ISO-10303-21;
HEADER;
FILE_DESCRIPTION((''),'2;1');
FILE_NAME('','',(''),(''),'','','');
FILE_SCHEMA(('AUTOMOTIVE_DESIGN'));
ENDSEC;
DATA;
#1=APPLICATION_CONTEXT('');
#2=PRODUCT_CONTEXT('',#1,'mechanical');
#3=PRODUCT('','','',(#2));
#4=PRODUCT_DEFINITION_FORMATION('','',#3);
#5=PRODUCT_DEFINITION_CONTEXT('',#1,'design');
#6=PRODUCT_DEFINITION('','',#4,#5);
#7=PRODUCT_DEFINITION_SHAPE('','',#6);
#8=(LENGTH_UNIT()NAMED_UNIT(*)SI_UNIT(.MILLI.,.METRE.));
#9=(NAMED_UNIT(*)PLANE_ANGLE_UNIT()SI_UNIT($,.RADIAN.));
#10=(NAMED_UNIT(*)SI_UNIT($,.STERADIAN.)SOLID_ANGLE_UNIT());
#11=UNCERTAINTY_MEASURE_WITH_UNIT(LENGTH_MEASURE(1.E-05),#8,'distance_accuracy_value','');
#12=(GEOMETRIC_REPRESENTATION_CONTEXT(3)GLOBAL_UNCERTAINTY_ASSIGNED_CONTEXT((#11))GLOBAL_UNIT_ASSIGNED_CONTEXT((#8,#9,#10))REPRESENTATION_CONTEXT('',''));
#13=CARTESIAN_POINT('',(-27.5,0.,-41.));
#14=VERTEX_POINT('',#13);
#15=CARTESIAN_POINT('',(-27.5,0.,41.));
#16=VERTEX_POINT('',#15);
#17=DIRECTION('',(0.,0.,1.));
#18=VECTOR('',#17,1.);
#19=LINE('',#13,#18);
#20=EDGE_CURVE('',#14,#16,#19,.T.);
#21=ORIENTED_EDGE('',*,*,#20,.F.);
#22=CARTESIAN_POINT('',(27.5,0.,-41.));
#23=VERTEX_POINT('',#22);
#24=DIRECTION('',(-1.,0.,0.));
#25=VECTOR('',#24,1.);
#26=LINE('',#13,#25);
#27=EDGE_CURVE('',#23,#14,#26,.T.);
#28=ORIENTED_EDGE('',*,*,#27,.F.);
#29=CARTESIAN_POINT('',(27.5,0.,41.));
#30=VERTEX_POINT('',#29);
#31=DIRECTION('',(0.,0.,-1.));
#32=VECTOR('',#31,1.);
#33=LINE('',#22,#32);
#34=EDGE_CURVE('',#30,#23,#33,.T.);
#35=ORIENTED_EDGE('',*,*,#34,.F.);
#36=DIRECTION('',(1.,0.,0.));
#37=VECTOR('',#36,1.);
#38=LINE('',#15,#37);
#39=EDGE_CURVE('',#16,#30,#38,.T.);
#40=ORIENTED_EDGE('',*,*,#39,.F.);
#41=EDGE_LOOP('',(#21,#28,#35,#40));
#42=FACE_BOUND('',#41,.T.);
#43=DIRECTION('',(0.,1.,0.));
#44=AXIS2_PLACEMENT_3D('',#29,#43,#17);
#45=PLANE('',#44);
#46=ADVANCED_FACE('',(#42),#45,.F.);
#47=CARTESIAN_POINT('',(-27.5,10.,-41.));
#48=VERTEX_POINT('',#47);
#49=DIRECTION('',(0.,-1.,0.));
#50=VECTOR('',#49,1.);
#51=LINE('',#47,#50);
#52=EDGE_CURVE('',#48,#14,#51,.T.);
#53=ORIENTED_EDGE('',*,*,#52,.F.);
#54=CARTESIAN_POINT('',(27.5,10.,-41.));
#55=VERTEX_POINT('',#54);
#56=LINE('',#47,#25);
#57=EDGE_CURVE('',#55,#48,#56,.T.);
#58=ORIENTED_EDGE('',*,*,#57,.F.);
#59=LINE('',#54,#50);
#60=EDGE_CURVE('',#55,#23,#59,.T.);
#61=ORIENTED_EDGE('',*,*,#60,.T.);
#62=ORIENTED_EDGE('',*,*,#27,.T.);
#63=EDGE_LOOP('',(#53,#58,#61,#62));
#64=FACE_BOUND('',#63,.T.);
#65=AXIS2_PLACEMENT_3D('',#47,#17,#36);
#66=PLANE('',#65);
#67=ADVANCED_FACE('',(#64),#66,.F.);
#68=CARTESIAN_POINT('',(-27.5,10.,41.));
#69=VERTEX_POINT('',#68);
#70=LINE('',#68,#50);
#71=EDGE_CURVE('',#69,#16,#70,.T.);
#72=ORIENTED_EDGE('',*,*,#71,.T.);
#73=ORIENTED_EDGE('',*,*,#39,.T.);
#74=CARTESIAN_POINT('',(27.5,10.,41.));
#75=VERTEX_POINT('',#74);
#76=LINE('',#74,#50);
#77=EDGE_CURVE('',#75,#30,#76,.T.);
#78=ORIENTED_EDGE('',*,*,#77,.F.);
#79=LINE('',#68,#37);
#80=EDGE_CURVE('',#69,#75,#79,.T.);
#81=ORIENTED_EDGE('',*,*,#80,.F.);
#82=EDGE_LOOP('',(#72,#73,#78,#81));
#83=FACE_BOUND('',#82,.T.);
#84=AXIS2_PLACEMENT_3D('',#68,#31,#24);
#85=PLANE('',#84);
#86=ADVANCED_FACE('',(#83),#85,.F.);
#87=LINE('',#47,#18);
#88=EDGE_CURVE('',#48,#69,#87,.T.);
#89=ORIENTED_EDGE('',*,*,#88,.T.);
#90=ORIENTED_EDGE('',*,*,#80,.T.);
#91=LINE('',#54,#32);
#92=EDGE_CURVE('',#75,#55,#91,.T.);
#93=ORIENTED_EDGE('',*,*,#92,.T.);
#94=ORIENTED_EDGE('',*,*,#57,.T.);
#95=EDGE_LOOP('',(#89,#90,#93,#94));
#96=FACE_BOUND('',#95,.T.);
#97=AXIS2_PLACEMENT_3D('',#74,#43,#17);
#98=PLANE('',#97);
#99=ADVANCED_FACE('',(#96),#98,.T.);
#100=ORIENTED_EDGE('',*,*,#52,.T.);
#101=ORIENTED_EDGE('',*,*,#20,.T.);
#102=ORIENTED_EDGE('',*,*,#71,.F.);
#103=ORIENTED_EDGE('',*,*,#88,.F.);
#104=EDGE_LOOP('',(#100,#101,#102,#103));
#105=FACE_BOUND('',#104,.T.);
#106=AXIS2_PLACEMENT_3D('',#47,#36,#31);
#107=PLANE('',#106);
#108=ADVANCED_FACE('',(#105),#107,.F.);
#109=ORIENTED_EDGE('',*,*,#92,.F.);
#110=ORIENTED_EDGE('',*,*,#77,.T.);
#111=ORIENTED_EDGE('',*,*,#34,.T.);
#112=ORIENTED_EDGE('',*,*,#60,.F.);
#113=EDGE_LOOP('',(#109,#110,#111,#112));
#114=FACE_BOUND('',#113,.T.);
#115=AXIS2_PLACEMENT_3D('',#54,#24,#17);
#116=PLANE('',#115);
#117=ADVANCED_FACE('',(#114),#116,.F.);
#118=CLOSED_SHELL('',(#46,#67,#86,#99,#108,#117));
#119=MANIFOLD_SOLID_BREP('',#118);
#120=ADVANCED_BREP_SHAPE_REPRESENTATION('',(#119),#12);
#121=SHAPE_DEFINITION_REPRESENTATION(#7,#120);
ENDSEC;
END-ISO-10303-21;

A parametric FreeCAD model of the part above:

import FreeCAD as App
import Part
import Sketcher
Q = App.Units.Quantity


def add_polygon(sketch, points):
    """Adds a closed chain of lines whose ends are joined by coincident constraints."""
    first, n = sketch.GeometryCount, len(points)
    for a, b in zip(points, points[1:] + points[:1]):
        sketch.addGeometry(Part.LineSegment(App.Vector(*a, 0), App.Vector(*b, 0)), False)
    for i in range(n):
        sketch.addConstraint(Sketcher.Constraint("Coincident", first + i, 2, first + (i + 1) % n, 1))

doc = App.newDocument("Part")
body = doc.addObject("PartDesign::Body", "Body")

sketch1 = doc.addObject("Sketcher::SketchObject", "Sketch")
body.addObject(sketch1)
sketch1.AttachmentSupport = (doc.XZ_Plane, [""])
sketch1.MapMode = "FlatFace"
add_polygon(sketch1, [(-27.5, -41), (-27.5, 41), (27.5, 41), (27.5, -41)])
sketch1.addConstraint(Sketcher.Constraint("Vertical", 0))
sketch1.addConstraint(Sketcher.Constraint("Horizontal", 1))
sketch1.addConstraint(Sketcher.Constraint("Vertical", 2))
sketch1.addConstraint(Sketcher.Constraint("Horizontal", 3))
sketch1.addConstraint(Sketcher.Constraint("Symmetric", 0, 2, 2, 2, -1, 1))
sketch1.addConstraint(Sketcher.Constraint("DistanceX", 1, 1, 1, 2, Q("55 mm")))
sketch1.addConstraint(Sketcher.Constraint("DistanceY", 0, 1, 0, 2, Q("82 mm")))
pad1 = doc.addObject("PartDesign::Pad", "Pad")
body.addObject(pad1)
pad1.Profile = sketch1
pad1.Length = 10
pad1.Reversed = True

doc.recompute()
